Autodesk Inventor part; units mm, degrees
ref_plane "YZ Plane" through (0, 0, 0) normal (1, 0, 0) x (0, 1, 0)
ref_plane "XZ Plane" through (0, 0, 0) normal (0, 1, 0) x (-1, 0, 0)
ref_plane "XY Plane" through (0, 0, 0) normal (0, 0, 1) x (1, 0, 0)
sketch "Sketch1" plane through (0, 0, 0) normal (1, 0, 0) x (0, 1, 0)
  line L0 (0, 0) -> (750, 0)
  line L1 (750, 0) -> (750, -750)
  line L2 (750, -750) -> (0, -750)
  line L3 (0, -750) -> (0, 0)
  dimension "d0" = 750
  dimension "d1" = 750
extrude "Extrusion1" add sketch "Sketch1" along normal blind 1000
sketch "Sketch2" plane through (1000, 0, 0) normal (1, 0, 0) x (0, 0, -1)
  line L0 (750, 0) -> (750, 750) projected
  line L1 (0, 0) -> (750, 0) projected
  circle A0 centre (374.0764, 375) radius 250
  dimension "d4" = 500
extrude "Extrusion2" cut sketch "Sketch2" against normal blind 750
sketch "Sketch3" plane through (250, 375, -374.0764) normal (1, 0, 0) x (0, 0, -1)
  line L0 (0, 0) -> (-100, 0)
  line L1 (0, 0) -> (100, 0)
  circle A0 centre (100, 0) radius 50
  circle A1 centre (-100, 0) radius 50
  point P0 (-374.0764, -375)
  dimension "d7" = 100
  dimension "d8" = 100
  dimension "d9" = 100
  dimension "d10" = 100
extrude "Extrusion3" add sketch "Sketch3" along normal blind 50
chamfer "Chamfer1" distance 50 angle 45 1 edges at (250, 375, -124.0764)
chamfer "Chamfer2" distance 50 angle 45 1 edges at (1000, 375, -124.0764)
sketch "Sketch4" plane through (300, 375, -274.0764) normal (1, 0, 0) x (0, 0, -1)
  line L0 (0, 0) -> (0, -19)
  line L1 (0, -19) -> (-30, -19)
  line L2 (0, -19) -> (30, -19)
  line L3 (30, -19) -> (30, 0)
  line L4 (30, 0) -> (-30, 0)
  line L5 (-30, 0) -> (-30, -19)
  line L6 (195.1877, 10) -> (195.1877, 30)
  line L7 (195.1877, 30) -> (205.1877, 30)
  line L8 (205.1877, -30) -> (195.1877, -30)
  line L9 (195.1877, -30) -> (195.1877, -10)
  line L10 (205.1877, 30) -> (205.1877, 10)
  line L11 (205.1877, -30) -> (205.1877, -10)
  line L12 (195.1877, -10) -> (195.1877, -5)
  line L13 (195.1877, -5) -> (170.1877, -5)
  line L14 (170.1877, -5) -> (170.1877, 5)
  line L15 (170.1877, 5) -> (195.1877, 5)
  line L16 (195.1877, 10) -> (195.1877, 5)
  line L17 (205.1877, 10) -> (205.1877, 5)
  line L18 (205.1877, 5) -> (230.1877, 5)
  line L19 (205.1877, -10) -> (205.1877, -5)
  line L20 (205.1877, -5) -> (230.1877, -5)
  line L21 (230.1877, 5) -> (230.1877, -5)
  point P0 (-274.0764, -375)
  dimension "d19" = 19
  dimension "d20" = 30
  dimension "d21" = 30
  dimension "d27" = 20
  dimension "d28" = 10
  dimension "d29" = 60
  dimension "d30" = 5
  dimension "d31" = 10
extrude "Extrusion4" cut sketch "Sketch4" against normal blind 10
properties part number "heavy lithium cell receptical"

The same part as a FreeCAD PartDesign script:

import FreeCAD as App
import Part
import Sketcher


def edges_at(feature, points):
    """Names of the edges that pass closest to the given points."""
    edges = feature.Shape.Edges
    near = lambda p: min(range(len(edges)), key=lambda i: edges[i].distToShape(Part.Vertex(*p))[0])
    return sorted({f"Edge{near(p) + 1}" for p in points})

doc = App.newDocument("Part")
params = doc.addObject("Spreadsheet::Sheet", "Params")
for row, (alias, value) in enumerate([
    ("sketch1_width", "750 mm"),
    ("pad1_length", "1000 mm"),
    ("sketch2_diameter", "500 mm"),
    ("pocket1_length", "750 mm"),
    ("sketch3_diameter", "100 mm"),
    ("pad2_length", "50 mm"),
    ("chamfer_size", "50 mm"),
    ("chamfer2_size", "50 mm"),
    ("sketch4_width", "19 mm"),
    ("sketch4_width2", "10 mm"),
    ("sketch4_height", "60 mm"),
    ("sketch4_width3", "25 mm"),
    ("pocket2_length", "10 mm"),
], start=1):
    params.set(f"A{row}", alias)
    params.set(f"B{row}", "=" + value)
    params.setAlias(f"B{row}", alias)

body = doc.addObject("PartDesign::Body", "Body")

# Sketch on YZ plane
sketch1 = doc.addObject("Sketcher::SketchObject", "Sketch")
body.addObject(sketch1)
sketch1.AttachmentSupport = (doc.YZ_Plane, [""])
sketch1.MapMode = "FlatFace"
sketch1.addGeometry([
    Part.LineSegment(App.Vector(750, 0, 0), App.Vector(0, 0, 0)),
    Part.LineSegment(App.Vector(0, 0, 0), App.Vector(0, -750, 0)),
    Part.LineSegment(App.Vector(0, -750, 0), App.Vector(750, -750, 0)),
    Part.LineSegment(App.Vector(750, -750, 0), App.Vector(750, 0, 0)),
], False)
sketch1.addConstraint([
    Sketcher.Constraint("Coincident", 0, 2, 1, 1),
    Sketcher.Constraint("Coincident", 1, 2, 2, 1),
    Sketcher.Constraint("Coincident", 2, 2, 3, 1),
    Sketcher.Constraint("Coincident", 3, 2, 0, 1),
    Sketcher.Constraint("Horizontal", 0),
    Sketcher.Constraint("Vertical", 1),
    Sketcher.Constraint("Horizontal", 2),
    Sketcher.Constraint("Vertical", 3),
    Sketcher.Constraint("Coincident", 0, 2, -1, 1),
    Sketcher.Constraint("Equal", 2, 1),
    Sketcher.Constraint("DistanceX", 0, 2, 0, 1, 750.0),
])
sketch1.setExpression("Constraints[10]", "Params.sketch1_width")
pad1 = doc.addObject("PartDesign::Pad", "Pad")
body.addObject(pad1)
pad1.Profile = sketch1
pad1.setExpression("Length", "Params.pad1_length")

# Sketch on YZ plane
sketch2 = doc.addObject("Sketcher::SketchObject", "Sketch001")
body.addObject(sketch2)
sketch2.AttachmentSupport = (doc.YZ_Plane, [""])
sketch2.MapMode = "FlatFace"
sketch2.AttachmentOffset = App.Placement(App.Vector(0, 0, 1000), App.Rotation())
sketch2.addGeometry(Part.Circle(App.Vector(375, -374.0764, 0), App.Vector(0, 0, 1), 250), False)
sketch2.addConstraint([
    Sketcher.Constraint("Diameter", 0, 500.0),
    Sketcher.Constraint("DistanceX", -1, 1, 0, 3, 375.0),
    Sketcher.Constraint("DistanceY", 0, 3, -1, 1, 374.0764),
])
sketch2.setExpression("Constraints[0]", "Params.sketch2_diameter")
pocket1 = doc.addObject("PartDesign::Pocket", "Pocket")
body.addObject(pocket1)
pocket1.Profile = sketch2
pocket1.setExpression("Length", "Params.pocket1_length")

# Sketch on YZ plane
sketch3 = doc.addObject("Sketcher::SketchObject", "Sketch002")
body.addObject(sketch3)
sketch3.AttachmentSupport = (doc.YZ_Plane, [""])
sketch3.MapMode = "FlatFace"
sketch3.AttachmentOffset = App.Placement(App.Vector(0, 0, 250), App.Rotation())
sketch3.addGeometry([
    Part.Circle(App.Vector(375, -274.0764, 0), App.Vector(0, 0, 1), 50),
    Part.Circle(App.Vector(375, -474.0764, 0), App.Vector(0, 0, 1), 50),
], False)
sketch3.addConstraint([
    Sketcher.Constraint("Equal", 0, 1),
    Sketcher.Constraint("Vertical", 0, 3, 1, 3),
    Sketcher.Constraint("Diameter", 0, 100.0),
    Sketcher.Constraint("DistanceX", -1, 1, 0, 3, 375.0),
    Sketcher.Constraint("DistanceY", 1, 3, 0, 3, 200.0),
    Sketcher.Constraint("DistanceY", 0, 3, -1, 1, 274.0764),
])
sketch3.setExpression("Constraints[2]", "Params.sketch3_diameter")
pad2 = doc.addObject("PartDesign::Pad", "Pad001")
body.addObject(pad2)
pad2.Profile = sketch3
pad2.setExpression("Length", "Params.pad2_length")
doc.recompute()

chamfer = doc.addObject("PartDesign::Chamfer", "Chamfer")
body.addObject(chamfer)
chamfer.Base = (pad2, edges_at(pad2, [(250, 375, -124.076)]))
chamfer.setExpression("Size", "Params.chamfer_size")
doc.recompute()

chamfer2 = doc.addObject("PartDesign::Chamfer", "Chamfer001")
body.addObject(chamfer2)
chamfer2.Base = (chamfer, edges_at(chamfer, [(1000, 375, -124.076)]))
chamfer2.setExpression("Size", "Params.chamfer2_size")

# Sketch on YZ plane
sketch4 = doc.addObject("Sketcher::SketchObject", "Sketch003")
body.addObject(sketch4)
sketch4.AttachmentSupport = (doc.YZ_Plane, [""])
sketch4.MapMode = "FlatFace"
sketch4.AttachmentOffset = App.Placement(App.Vector(0, 0, 300), App.Rotation())
sketch4.addGeometry([
    Part.LineSegment(App.Vector(375, -304.0764, 0), App.Vector(375, -244.0764, 0)),  # 0
    Part.LineSegment(App.Vector(375, -244.0764, 0), App.Vector(356, -244.0764, 0)),  # 1
    Part.LineSegment(App.Vector(356, -244.0764, 0), App.Vector(356, -304.0764, 0)),  # 2
    Part.LineSegment(App.Vector(356, -304.0764, 0), App.Vector(375, -304.0764, 0)),  # 3
    Part.LineSegment(App.Vector(405, -469.2641, 0), App.Vector(380, -469.2641, 0)),  # 4
    Part.LineSegment(App.Vector(380, -469.2641, 0), App.Vector(380, -444.2641, 0)),  # 5
    Part.LineSegment(App.Vector(380, -444.2641, 0), App.Vector(370, -444.2641, 0)),  # 6
    Part.LineSegment(App.Vector(370, -444.2641, 0), App.Vector(370, -469.2641, 0)),  # 7
    Part.LineSegment(App.Vector(370, -469.2641, 0), App.Vector(345, -469.2641, 0)),  # 8
    Part.LineSegment(App.Vector(345, -469.2641, 0), App.Vector(345, -479.2641, 0)),  # 9
    Part.LineSegment(App.Vector(345, -479.2641, 0), App.Vector(370, -479.2641, 0)),  # 10
    Part.LineSegment(App.Vector(370, -479.2641, 0), App.Vector(370, -504.2641, 0)),  # 11
    Part.LineSegment(App.Vector(370, -504.2641, 0), App.Vector(380, -504.2641, 0)),  # 12
    Part.LineSegment(App.Vector(380, -504.2641, 0), App.Vector(380, -479.2641, 0)),  # 13
    Part.LineSegment(App.Vector(380, -479.2641, 0), App.Vector(405, -479.2641, 0)),  # 14
    Part.LineSegment(App.Vector(405, -479.2641, 0), App.Vector(405, -469.2641, 0)),  # 15
], False)
sketch4.addConstraint([
    Sketcher.Constraint("Coincident", 0, 2, 1, 1),
    Sketcher.Constraint("Coincident", 1, 2, 2, 1),
    Sketcher.Constraint("Coincident", 2, 2, 3, 1),
    Sketcher.Constraint("Coincident", 3, 2, 0, 1),
    Sketcher.Constraint("Coincident", 4, 2, 5, 1),
    Sketcher.Constraint("Coincident", 5, 2, 6, 1),
    Sketcher.Constraint("Coincident", 6, 2, 7, 1),
    Sketcher.Constraint("Coincident", 7, 2, 8, 1),
    Sketcher.Constraint("Coincident", 8, 2, 9, 1),
    Sketcher.Constraint("Coincident", 9, 2, 10, 1),
    Sketcher.Constraint("Coincident", 10, 2, 11, 1),
    Sketcher.Constraint("Coincident", 11, 2, 12, 1),
    Sketcher.Constraint("Coincident", 12, 2, 13, 1),
    Sketcher.Constraint("Coincident", 13, 2, 14, 1),
    Sketcher.Constraint("Coincident", 14, 2, 15, 1),
    Sketcher.Constraint("Coincident", 15, 2, 4, 1),
    Sketcher.Constraint("Vertical", 0),
    Sketcher.Constraint("Horizontal", 1),
    Sketcher.Constraint("Vertical", 2),
    Sketcher.Constraint("Horizontal", 3),
    Sketcher.Constraint("Horizontal", 4),
    Sketcher.Constraint("Vertical", 5),
    Sketcher.Constraint("Horizontal", 6),
    Sketcher.Constraint("Vertical", 7),
    Sketcher.Constraint("Horizontal", 8),
    Sketcher.Constraint("Vertical", 9),
    Sketcher.Constraint("Horizontal", 10),
    Sketcher.Constraint("Vertical", 11),
    Sketcher.Constraint("Horizontal", 12),
    Sketcher.Constraint("Vertical", 13),
    Sketcher.Constraint("Horizontal", 14),
    Sketcher.Constraint("Vertical", 15),
    Sketcher.Constraint("Horizontal", 4, 2, 7, 2),
    Sketcher.Constraint("Horizontal", 10, 2, 13, 2),
    Sketcher.Constraint("Vertical", 7, 2, 10, 2),
    Sketcher.Constraint("Vertical", 5, 2, 12, 2),
    Sketcher.Constraint("Equal", 4, 8),
    Sketcher.Constraint("Equal", 14, 5),
    Sketcher.Constraint("Equal", 12, 9),
    Sketcher.Constraint("Equal", 7, 11),
    Sketcher.Constraint("DistanceX", 1, 2, 1, 1, 19.0),
    Sketcher.Constraint("DistanceX", 6, 2, 6, 1, 10.0),
    Sketcher.Constraint("DistanceY", 0, 1, 0, 2, 60.0),
    Sketcher.Constraint("DistanceX", 3, 2, 4, 2, 5.0),
    Sketcher.Constraint("DistanceX", 4, 2, 4, 1, 25.0),
    Sketcher.Constraint("DistanceX", -1, 1, 0, 2, 375.0),
    Sketcher.Constraint("DistanceY", 4, 2, -1, 1, 469.264),
    Sketcher.Constraint("DistanceY", 0, 2, -1, 1, 244.0764),
])
sketch4.setExpression("Constraints[40]", "Params.sketch4_width")
sketch4.setExpression("Constraints[41]", "Params.sketch4_width2")
sketch4.setExpression("Constraints[42]", "Params.sketch4_height")
sketch4.setExpression("Constraints[44]", "Params.sketch4_width3")
pocket2 = doc.addObject("PartDesign::Pocket", "Pocket001")
body.addObject(pocket2)
pocket2.Profile = sketch4
pocket2.setExpression("Length", "Params.pocket2_length")

doc.recompute()
